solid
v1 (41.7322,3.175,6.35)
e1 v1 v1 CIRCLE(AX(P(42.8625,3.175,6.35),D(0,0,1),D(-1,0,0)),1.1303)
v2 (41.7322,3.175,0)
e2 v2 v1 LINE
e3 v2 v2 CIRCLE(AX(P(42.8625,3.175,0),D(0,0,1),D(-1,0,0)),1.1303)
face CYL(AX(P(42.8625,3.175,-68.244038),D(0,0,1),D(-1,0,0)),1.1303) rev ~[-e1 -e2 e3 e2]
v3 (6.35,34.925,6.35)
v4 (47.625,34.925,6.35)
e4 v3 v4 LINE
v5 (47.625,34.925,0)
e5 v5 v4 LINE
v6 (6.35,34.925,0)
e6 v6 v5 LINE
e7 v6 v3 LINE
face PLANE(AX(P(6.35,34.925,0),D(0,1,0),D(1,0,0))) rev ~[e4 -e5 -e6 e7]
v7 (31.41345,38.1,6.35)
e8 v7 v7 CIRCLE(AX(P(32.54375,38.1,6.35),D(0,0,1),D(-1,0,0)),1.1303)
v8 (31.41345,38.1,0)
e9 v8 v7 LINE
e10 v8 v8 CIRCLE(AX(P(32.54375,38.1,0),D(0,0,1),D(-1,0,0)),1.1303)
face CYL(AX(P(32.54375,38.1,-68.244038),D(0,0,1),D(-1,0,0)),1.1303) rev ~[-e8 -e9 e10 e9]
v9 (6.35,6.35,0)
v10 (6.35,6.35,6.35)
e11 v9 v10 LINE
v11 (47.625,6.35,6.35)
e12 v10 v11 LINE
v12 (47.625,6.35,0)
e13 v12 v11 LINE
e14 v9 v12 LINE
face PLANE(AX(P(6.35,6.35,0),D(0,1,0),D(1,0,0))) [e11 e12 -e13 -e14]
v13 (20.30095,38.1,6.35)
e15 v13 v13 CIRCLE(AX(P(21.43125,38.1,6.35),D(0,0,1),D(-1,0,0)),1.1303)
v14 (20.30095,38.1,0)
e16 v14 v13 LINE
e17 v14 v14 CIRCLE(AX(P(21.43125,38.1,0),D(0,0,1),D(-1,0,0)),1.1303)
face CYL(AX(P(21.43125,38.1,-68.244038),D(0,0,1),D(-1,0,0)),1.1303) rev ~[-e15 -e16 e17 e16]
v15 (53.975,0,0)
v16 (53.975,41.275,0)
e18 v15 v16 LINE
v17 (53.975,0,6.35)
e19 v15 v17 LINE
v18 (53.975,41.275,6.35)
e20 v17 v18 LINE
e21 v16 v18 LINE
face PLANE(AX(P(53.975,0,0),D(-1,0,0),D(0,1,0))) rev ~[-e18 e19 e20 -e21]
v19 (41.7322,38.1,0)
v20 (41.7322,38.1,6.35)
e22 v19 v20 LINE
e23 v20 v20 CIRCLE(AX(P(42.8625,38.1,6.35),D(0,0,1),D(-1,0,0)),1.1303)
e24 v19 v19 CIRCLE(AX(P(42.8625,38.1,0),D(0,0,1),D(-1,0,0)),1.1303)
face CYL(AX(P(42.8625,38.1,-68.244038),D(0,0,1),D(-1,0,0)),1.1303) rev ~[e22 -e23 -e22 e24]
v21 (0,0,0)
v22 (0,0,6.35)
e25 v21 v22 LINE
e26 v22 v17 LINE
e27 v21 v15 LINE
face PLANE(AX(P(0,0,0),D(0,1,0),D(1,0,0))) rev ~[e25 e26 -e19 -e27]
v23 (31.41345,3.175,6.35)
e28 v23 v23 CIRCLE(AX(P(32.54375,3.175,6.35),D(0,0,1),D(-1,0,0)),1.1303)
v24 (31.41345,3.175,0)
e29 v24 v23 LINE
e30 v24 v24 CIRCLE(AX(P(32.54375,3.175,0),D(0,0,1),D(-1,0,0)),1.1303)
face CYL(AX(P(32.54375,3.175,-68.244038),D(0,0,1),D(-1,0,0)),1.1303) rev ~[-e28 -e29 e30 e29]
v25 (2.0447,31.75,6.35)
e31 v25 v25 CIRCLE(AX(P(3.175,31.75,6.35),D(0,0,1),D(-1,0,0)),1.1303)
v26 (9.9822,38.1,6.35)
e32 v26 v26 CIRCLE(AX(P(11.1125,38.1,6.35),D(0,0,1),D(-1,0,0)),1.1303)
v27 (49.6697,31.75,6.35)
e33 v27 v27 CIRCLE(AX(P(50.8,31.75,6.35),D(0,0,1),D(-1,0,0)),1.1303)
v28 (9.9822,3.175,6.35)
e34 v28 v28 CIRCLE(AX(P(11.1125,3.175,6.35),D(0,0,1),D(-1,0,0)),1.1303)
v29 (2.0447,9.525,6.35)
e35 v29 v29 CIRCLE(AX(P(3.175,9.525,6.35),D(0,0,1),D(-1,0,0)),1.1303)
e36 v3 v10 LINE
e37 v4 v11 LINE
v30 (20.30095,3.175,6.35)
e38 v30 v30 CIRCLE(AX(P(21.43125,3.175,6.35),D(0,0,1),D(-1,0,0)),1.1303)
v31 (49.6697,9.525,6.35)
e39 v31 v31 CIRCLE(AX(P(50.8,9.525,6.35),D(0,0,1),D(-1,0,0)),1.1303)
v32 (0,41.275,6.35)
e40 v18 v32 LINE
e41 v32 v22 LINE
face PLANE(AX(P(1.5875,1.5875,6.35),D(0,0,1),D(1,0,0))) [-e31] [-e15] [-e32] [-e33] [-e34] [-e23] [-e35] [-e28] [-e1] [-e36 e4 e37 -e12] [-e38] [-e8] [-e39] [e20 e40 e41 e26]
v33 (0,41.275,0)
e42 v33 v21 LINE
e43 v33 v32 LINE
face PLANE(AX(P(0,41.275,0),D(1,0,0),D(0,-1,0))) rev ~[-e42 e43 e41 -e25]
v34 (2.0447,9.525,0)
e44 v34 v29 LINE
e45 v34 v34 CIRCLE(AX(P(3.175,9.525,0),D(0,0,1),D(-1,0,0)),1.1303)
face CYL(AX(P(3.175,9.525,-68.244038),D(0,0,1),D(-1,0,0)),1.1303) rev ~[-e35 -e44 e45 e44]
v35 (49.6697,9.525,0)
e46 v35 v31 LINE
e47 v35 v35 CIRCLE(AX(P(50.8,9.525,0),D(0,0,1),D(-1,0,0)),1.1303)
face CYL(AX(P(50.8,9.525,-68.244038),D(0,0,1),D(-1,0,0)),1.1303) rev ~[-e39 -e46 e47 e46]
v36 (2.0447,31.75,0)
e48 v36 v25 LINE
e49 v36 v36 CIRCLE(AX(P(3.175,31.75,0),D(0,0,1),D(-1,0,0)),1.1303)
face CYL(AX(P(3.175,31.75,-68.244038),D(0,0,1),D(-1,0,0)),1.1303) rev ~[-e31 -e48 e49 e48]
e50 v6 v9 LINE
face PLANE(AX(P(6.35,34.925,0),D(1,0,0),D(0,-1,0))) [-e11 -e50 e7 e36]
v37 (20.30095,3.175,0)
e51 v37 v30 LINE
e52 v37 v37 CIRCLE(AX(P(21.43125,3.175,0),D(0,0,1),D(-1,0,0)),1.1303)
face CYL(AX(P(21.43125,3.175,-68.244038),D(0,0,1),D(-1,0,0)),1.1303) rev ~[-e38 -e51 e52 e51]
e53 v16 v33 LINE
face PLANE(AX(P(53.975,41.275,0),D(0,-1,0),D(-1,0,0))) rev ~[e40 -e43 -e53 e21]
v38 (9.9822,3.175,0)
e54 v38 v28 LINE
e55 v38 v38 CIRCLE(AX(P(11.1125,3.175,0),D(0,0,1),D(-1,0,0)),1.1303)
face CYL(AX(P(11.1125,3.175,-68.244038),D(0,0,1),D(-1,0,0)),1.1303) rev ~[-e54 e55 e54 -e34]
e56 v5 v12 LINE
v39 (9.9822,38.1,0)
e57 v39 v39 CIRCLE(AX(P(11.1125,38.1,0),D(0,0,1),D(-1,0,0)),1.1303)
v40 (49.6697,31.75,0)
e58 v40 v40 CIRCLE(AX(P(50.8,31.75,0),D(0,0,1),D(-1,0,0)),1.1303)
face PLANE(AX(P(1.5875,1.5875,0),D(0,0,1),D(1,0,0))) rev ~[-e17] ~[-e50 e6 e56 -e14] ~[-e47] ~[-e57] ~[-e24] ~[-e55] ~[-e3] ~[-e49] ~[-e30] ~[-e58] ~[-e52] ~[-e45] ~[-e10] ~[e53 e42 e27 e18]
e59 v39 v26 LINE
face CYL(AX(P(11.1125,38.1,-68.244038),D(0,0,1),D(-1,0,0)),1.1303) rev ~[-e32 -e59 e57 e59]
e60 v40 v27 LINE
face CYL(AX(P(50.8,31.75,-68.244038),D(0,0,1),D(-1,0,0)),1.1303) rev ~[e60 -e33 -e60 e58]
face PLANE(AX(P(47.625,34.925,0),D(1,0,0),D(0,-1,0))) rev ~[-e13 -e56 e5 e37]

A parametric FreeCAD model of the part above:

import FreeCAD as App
import Part
import Sketcher
Q = App.Units.Quantity


def add_polygon(sketch, points):
    """Adds a closed chain of lines whose ends are joined by coincident constraints."""
    first, n = sketch.GeometryCount, len(points)
    for a, b in zip(points, points[1:] + points[:1]):
        sketch.addGeometry(Part.LineSegment(App.Vector(*a, 0), App.Vector(*b, 0)), False)
    for i in range(n):
        sketch.addConstraint(Sketcher.Constraint("Coincident", first + i, 2, first + (i + 1) % n, 1))

doc = App.newDocument("Part")
body = doc.addObject("PartDesign::Body", "Body")

sketch1 = body.newObject("Sketcher::SketchObject", "Sketch")
sketch1.AttachmentSupport = (doc.getObject("XY_Plane"), [""])
sketch1.MapMode = "FlatFace"
add_polygon(sketch1, [(0, 0), (54, 0), (54, 41), (0, 41)])
sketch1.addConstraint([
    Sketcher.Constraint("Horizontal", 0),
    Sketcher.Constraint("Vertical", 1),
    Sketcher.Constraint("Horizontal", 2),
    Sketcher.Constraint("Vertical", 3),
    Sketcher.Constraint("Coincident", 3, 2, -1, 1),
    Sketcher.Constraint("DistanceX", 0, 1, 0, 2, Q("2.125 in")),
    Sketcher.Constraint("DistanceY", 1, 1, 1, 2, Q("1.625 in")),
])
pad1 = body.newObject("PartDesign::Pad", "Pad")
pad1.Profile = sketch1
pad1.Length = Q("0.25 in")

sketch2 = body.newObject("Sketcher::SketchObject", "Sketch001")
sketch2.AttachmentSupport = (doc.getObject("XY_Plane"), [""])
sketch2.MapMode = "FlatFace"
add_polygon(sketch2, [(6, 6), (6, 35), (48, 35), (48, 6)])
sketch2.addConstraint([
    Sketcher.Constraint("Vertical", 0),
    Sketcher.Constraint("Horizontal", 1),
    Sketcher.Constraint("Vertical", 2),
    Sketcher.Constraint("Horizontal", 3),
    Sketcher.Constraint("DistanceX", 1, 1, 1, 2, Q("1.625 in")),
    Sketcher.Constraint("DistanceY", 0, 1, 0, 2, Q("1.125 in")),
    Sketcher.Constraint("DistanceX", -1, 1, 0, 2, Q("0.25 in")),
    Sketcher.Constraint("DistanceY", -1, 1, 2, 2, Q("0.25 in")),
])
pocket1 = body.newObject("PartDesign::Pocket", "Pocket")
pocket1.Profile = sketch2
pocket1.Type = "ThroughAll"
pocket1.Reversed = True

sketch3 = body.newObject("Sketcher::SketchObject", "Sketch002")
sketch3.AttachmentSupport = (doc.getObject("XY_Plane"), [""])
sketch3.MapMode = "FlatFace"
sketch3.addGeometry(Part.Circle(App.Vector(11.1, 3.2, 0), App.Vector(0, 0, 1), 1.1), False)
sketch3.addConstraint([
    Sketcher.Constraint("Diameter", 0, Q("0.089 in")),
    Sketcher.Constraint("DistanceX", -1, 1, 0, 3, Q("0.4375 in")),
    Sketcher.Constraint("DistanceY", -1, 1, 0, 3, Q("0.125 in")),
])
doc.recompute()
hole = body.newObject("PartDesign::Hole", "Hole")
hole.Profile = sketch3
hole.ThreadType = "None"
hole.Diameter = Q("0.089 in")
hole.DepthType = "ThroughAll"
hole.Reversed = True

sketch4 = body.newObject("Sketcher::SketchObject", "Sketch003")
sketch4.AttachmentSupport = (doc.getObject("XY_Plane"), [""])
sketch4.MapMode = "FlatFace"
sketch4.addGeometry(Part.Circle(App.Vector(21.4, 3.2, 0), App.Vector(0, 0, 1), 1.1), False)
sketch4.addConstraint([
    Sketcher.Constraint("Diameter", 0, Q("0.089 in")),
    Sketcher.Constraint("DistanceX", -1, 1, 0, 3, Q("0.84375 in")),
    Sketcher.Constraint("DistanceY", -1, 1, 0, 3, Q("0.125 in")),
])
doc.recompute()
hole2 = body.newObject("PartDesign::Hole", "Hole001")
hole2.Profile = sketch4
hole2.ThreadType = "None"
hole2.Diameter = Q("0.089 in")
hole2.DepthType = "ThroughAll"
hole2.Reversed = True

sketch5 = body.newObject("Sketcher::SketchObject", "Sketch004")
sketch5.AttachmentSupport = (doc.getObject("XY_Plane"), [""])
sketch5.MapMode = "FlatFace"
sketch5.addGeometry(Part.Circle(App.Vector(32.5, 3.2, 0), App.Vector(0, 0, 1), 1.1), False)
sketch5.addConstraint([
    Sketcher.Constraint("Diameter", 0, Q("0.089 in")),
    Sketcher.Constraint("DistanceX", -1, 1, 0, 3, Q("1.28125 in")),
    Sketcher.Constraint("DistanceY", -1, 1, 0, 3, Q("0.125 in")),
])
doc.recompute()
hole3 = body.newObject("PartDesign::Hole", "Hole002")
hole3.Profile = sketch5
hole3.ThreadType = "None"
hole3.Diameter = Q("0.089 in")
hole3.DepthType = "ThroughAll"
hole3.Reversed = True

sketch6 = body.newObject("Sketcher::SketchObject", "Sketch005")
sketch6.AttachmentSupport = (doc.getObject("XY_Plane"), [""])
sketch6.MapMode = "FlatFace"
sketch6.addGeometry(Part.Circle(App.Vector(42.9, 3.2, 0), App.Vector(0, 0, 1), 1.1), False)
sketch6.addConstraint([
    Sketcher.Constraint("Diameter", 0, Q("0.089 in")),
    Sketcher.Constraint("DistanceX", -1, 1, 0, 3, Q("1.6875 in")),
    Sketcher.Constraint("DistanceY", -1, 1, 0, 3, Q("0.125 in")),
])
doc.recompute()
hole4 = body.newObject("PartDesign::Hole", "Hole003")
hole4.Profile = sketch6
hole4.ThreadType = "None"
hole4.Diameter = Q("0.089 in")
hole4.DepthType = "ThroughAll"
hole4.Reversed = True

sketch7 = body.newObject("Sketcher::SketchObject", "Sketch006")
sketch7.AttachmentSupport = (doc.getObject("XY_Plane"), [""])
sketch7.MapMode = "FlatFace"
sketch7.addGeometry(Part.Circle(App.Vector(11.1, 38.1, 0), App.Vector(0, 0, 1), 1.1), False)
sketch7.addConstraint([
    Sketcher.Constraint("Diameter", 0, Q("0.089 in")),
    Sketcher.Constraint("DistanceY", -1, 1, 0, 3, Q("1.5 in")),
    Sketcher.Constraint("DistanceX", -1, 1, 0, 3, Q("0.4375 in")),
])
doc.recompute()
hole5 = body.newObject("PartDesign::Hole", "Hole004")
hole5.Profile = sketch7
hole5.ThreadType = "None"
hole5.Diameter = Q("0.089 in")
hole5.DepthType = "ThroughAll"
hole5.Reversed = True

sketch8 = body.newObject("Sketcher::SketchObject", "Sketch007")
sketch8.AttachmentSupport = (doc.getObject("XY_Plane"), [""])
sketch8.MapMode = "FlatFace"
sketch8.addGeometry(Part.Circle(App.Vector(21.4, 38.1, 0), App.Vector(0, 0, 1), 1.1), False)
sketch8.addConstraint([
    Sketcher.Constraint("Diameter", 0, Q("0.089 in")),
    Sketcher.Constraint("DistanceY", -1, 1, 0, 3, Q("1.5 in")),
    Sketcher.Constraint("DistanceX", -1, 1, 0, 3, Q("0.84375 in")),
])
doc.recompute()
hole6 = body.newObject("PartDesign::Hole", "Hole005")
hole6.Profile = sketch8
hole6.ThreadType = "None"
hole6.Diameter = Q("0.089 in")
hole6.DepthType = "ThroughAll"
hole6.Reversed = True

sketch9 = body.newObject("Sketcher::SketchObject", "Sketch008")
sketch9.AttachmentSupport = (doc.getObject("XY_Plane"), [""])
sketch9.MapMode = "FlatFace"
sketch9.addGeometry(Part.Circle(App.Vector(32.5, 38.1, 0), App.Vector(0, 0, 1), 1.1), False)
sketch9.addConstraint([
    Sketcher.Constraint("Diameter", 0, Q("0.089 in")),
    Sketcher.Constraint("DistanceY", -1, 1, 0, 3, Q("1.5 in")),
    Sketcher.Constraint("DistanceX", -1, 1, 0, 3, Q("1.28125 in")),
])
doc.recompute()
hole7 = body.newObject("PartDesign::Hole", "Hole006")
hole7.Profile = sketch9
hole7.ThreadType = "None"
hole7.Diameter = Q("0.089 in")
hole7.DepthType = "ThroughAll"
hole7.Reversed = True

sketch10 = body.newObject("Sketcher::SketchObject", "Sketch009")
sketch10.AttachmentSupport = (doc.getObject("XY_Plane"), [""])
sketch10.MapMode = "FlatFace"
sketch10.addGeometry(Part.Circle(App.Vector(42.9, 38.1, 0), App.Vector(0, 0, 1), 1.1), False)
sketch10.addConstraint([
    Sketcher.Constraint("Diameter", 0, Q("0.089 in")),
    Sketcher.Constraint("DistanceY", -1, 1, 0, 3, Q("1.5 in")),
    Sketcher.Constraint("DistanceX", -1, 1, 0, 3, Q("1.6875 in")),
])
doc.recompute()
hole8 = body.newObject("PartDesign::Hole", "Hole007")
hole8.Profile = sketch10
hole8.ThreadType = "None"
hole8.Diameter = Q("0.089 in")
hole8.DepthType = "ThroughAll"
hole8.Reversed = True

sketch11 = body.newObject("Sketcher::SketchObject", "Sketch010")
sketch11.AttachmentSupport = (doc.getObject("XY_Plane"), [""])
sketch11.MapMode = "FlatFace"
sketch11.addGeometry(Part.Circle(App.Vector(3.2, 9.5, 0), App.Vector(0, 0, 1), 1.1), False)
sketch11.addConstraint([
    Sketcher.Constraint("Diameter", 0, Q("0.089 in")),
    Sketcher.Constraint("DistanceX", -1, 1, 0, 3, Q("0.125 in")),
    Sketcher.Constraint("DistanceY", -1, 1, 0, 3, Q("0.375 in")),
])
doc.recompute()
hole9 = body.newObject("PartDesign::Hole", "Hole008")
hole9.Profile = sketch11
hole9.ThreadType = "None"
hole9.Diameter = Q("0.089 in")
hole9.DepthType = "ThroughAll"
hole9.Reversed = True

sketch12 = body.newObject("Sketcher::SketchObject", "Sketch011")
sketch12.AttachmentSupport = (doc.getObject("XY_Plane"), [""])
sketch12.MapMode = "FlatFace"
sketch12.addGeometry(Part.Circle(App.Vector(3.2, 31.8, 0), App.Vector(0, 0, 1), 1.1), False)
sketch12.addConstraint([
    Sketcher.Constraint("Diameter", 0, Q("0.089 in")),
    Sketcher.Constraint("DistanceY", -1, 1, 0, 3, Q("1.25 in")),
    Sketcher.Constraint("DistanceX", -1, 1, 0, 3, Q("0.125 in")),
])
doc.recompute()
hole10 = body.newObject("PartDesign::Hole", "Hole009")
hole10.Profile = sketch12
hole10.ThreadType = "None"
hole10.Diameter = Q("0.089 in")
hole10.DepthType = "ThroughAll"
hole10.Reversed = True

sketch13 = body.newObject("Sketcher::SketchObject", "Sketch012")
sketch13.AttachmentSupport = (doc.getObject("XY_Plane"), [""])
sketch13.MapMode = "FlatFace"
sketch13.addGeometry(Part.Circle(App.Vector(50.8, 9.5, 0), App.Vector(0, 0, 1), 1.1), False)
sketch13.addConstraint([
    Sketcher.Constraint("Diameter", 0, Q("0.089 in")),
    Sketcher.Constraint("DistanceX", -1, 1, 0, 3, Q("2 in")),
    Sketcher.Constraint("DistanceY", -1, 1, 0, 3, Q("0.375 in")),
])
doc.recompute()
hole11 = body.newObject("PartDesign::Hole", "Hole010")
hole11.Profile = sketch13
hole11.ThreadType = "None"
hole11.Diameter = Q("0.089 in")
hole11.DepthType = "ThroughAll"
hole11.Reversed = True

sketch14 = body.newObject("Sketcher::SketchObject", "Sketch013")
sketch14.AttachmentSupport = (doc.getObject("XY_Plane"), [""])
sketch14.MapMode = "FlatFace"
sketch14.addGeometry(Part.Circle(App.Vector(50.8, 31.8, 0), App.Vector(0, 0, 1), 1.1), False)
sketch14.addConstraint([
    Sketcher.Constraint("Diameter", 0, Q("0.089 in")),
    Sketcher.Constraint("DistanceX", -1, 1, 0, 3, Q("2 in")),
    Sketcher.Constraint("DistanceY", -1, 1, 0, 3, Q("1.25 in")),
])
doc.recompute()
hole12 = body.newObject("PartDesign::Hole", "Hole011")
hole12.Profile = sketch14
hole12.ThreadType = "None"
hole12.Diameter = Q("0.089 in")
hole12.DepthType = "ThroughAll"
hole12.Reversed = True

doc.recompute()
